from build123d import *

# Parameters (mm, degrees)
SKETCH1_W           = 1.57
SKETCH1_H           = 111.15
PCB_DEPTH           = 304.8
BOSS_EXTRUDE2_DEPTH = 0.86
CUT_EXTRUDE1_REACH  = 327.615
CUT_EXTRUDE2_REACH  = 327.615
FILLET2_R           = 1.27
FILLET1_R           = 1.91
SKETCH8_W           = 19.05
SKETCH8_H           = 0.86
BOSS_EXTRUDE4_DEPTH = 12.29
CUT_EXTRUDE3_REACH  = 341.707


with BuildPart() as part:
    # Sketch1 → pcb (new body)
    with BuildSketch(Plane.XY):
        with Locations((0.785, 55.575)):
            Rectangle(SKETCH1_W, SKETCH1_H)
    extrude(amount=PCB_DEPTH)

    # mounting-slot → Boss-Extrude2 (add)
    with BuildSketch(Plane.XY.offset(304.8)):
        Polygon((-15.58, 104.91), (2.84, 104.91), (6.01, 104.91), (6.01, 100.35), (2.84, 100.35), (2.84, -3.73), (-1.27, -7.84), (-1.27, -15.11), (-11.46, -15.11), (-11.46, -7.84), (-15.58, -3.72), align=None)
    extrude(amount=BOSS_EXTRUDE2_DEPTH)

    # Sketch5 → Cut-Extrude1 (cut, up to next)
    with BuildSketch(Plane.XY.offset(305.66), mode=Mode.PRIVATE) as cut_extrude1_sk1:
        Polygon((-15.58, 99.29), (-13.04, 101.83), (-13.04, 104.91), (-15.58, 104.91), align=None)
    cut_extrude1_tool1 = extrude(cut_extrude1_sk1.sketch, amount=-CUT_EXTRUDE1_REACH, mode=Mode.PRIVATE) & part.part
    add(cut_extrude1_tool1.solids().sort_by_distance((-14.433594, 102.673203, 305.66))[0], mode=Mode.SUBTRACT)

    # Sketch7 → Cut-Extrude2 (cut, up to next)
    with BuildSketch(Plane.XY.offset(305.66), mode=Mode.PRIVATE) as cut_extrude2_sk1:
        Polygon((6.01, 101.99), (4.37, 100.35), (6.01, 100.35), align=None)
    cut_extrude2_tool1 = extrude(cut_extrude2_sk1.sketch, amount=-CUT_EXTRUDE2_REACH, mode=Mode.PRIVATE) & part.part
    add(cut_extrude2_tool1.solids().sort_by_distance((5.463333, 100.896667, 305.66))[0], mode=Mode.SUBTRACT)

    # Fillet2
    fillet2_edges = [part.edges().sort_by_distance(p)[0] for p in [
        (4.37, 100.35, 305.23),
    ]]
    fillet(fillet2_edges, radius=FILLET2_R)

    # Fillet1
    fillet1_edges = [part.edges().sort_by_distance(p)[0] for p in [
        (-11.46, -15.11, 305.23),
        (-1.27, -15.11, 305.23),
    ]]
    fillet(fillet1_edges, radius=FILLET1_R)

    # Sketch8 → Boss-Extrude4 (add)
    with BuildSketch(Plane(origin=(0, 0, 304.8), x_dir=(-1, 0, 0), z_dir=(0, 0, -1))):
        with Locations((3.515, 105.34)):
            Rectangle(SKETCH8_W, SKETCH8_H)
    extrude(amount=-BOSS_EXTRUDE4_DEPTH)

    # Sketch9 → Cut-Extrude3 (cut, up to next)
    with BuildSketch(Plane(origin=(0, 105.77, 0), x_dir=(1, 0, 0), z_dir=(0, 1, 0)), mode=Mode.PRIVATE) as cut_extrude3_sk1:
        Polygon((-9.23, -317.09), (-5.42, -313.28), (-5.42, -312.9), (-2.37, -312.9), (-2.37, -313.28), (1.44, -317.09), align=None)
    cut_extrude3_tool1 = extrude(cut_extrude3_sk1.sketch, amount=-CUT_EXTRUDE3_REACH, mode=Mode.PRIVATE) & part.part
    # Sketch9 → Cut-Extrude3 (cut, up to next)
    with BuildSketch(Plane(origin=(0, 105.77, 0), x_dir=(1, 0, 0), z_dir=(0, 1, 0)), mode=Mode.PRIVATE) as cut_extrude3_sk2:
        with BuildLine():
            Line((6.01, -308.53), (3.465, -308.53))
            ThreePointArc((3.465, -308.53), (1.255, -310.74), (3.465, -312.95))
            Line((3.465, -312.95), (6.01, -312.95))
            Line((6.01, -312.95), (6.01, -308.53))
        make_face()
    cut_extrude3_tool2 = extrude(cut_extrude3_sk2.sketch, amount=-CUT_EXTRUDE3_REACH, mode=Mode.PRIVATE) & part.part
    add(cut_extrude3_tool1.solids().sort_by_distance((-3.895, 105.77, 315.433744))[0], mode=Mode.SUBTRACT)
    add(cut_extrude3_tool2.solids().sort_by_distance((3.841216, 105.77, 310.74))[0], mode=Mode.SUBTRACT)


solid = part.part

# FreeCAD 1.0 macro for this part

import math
import FreeCAD as App
import Part
import Sketcher
Q = App.Units.Quantity


def edges_at(feature, points):
    """Names of the edges that pass closest to the given points."""
    edges = feature.Shape.Edges
    near = lambda p: min(range(len(edges)), key=lambda i: edges[i].distToShape(Part.Vertex(*p))[0])
    return sorted({f"Edge{near(p) + 1}" for p in points})


def add_polygon(sketch, points):
    """Adds a closed chain of lines whose ends are joined by coincident constraints."""
    first, n = sketch.GeometryCount, len(points)
    for a, b in zip(points, points[1:] + points[:1]):
        sketch.addGeometry(Part.LineSegment(App.Vector(*a, 0), App.Vector(*b, 0)), False)
    for i in range(n):
        sketch.addConstraint(Sketcher.Constraint("Coincident", first + i, 2, first + (i + 1) % n, 1))

doc = App.newDocument("Part")
body = doc.addObject("PartDesign::Body", "Body")

sketch1 = body.newObject("Sketcher::SketchObject", "Sketch")
sketch1.AttachmentSupport = (doc.getObject("XY_Plane"), [""])
sketch1.MapMode = "FlatFace"
add_polygon(sketch1, [(0, 111.2), (0, 0), (1.6, 0), (1.6, 111.2)])
sketch1.addConstraint([
    Sketcher.Constraint("Vertical", 0),
    Sketcher.Constraint("Horizontal", 1),
    Sketcher.Constraint("Vertical", 2),
    Sketcher.Constraint("Horizontal", 3),
    Sketcher.Constraint("Coincident", 0, 2, -1, 1),
    Sketcher.Constraint("DistanceX", 1, 1, 1, 2, Q("1.57 mm")),
    Sketcher.Constraint("DistanceY", 0, 2, 0, 1, Q("111.15 mm")),
])
pad1 = body.newObject("PartDesign::Pad", "Pad")
pad1.Profile = sketch1
pad1.Length = Q("12 in")

sketch2 = body.newObject("Sketcher::SketchObject", "Sketch001")
sketch2.AttachmentSupport = (doc.getObject("XY_Plane"), [""])
sketch2.MapMode = "FlatFace"
sketch2.AttachmentOffset = App.Placement(App.Vector(0, 0, 12 * 25.4), App.Rotation())
add_polygon(sketch2, [(6, 104.9), (-15.6, 104.9), (-15.6, -3.7), (-11.5, -7.8), (-11.5, -15.1), (-1.3, -15.1), (-1.3, -7.8), (2.8, -3.7), (2.8, 100.3), (6, 100.3)])
sketch2.addConstraint([
    Sketcher.Constraint("Horizontal", 0),
    Sketcher.Constraint("Vertical", 1),
    Sketcher.Constraint("Vertical", 3),
    Sketcher.Constraint("Horizontal", 4),
    Sketcher.Constraint("Vertical", 5),
    Sketcher.Constraint("Vertical", 7),
    Sketcher.Constraint("Horizontal", 8),
    Sketcher.Constraint("Vertical", 9),
    Sketcher.Constraint("Perpendicular", 2, 6),
    Sketcher.Constraint("Horizontal", 2, 2, 5, 2),
    Sketcher.Constraint("Angle", 2, Q("-45 deg")),
    Sketcher.Constraint("DistanceX", 0, 2, 0, 1, Q("0.85 in")),
    Sketcher.Constraint("DistanceX", 4, 2, -1, 1, Q("0.05 in")),
    Sketcher.Constraint("DistanceX", 4, 1, 4, 2, Q("10.19 mm")),
    Sketcher.Constraint("DistanceX", 8, 1, 8, 2, Q("3.17 mm")),
    Sketcher.Constraint("DistanceY", 1, 2, 1, 1, Q("108.63 mm")),
    Sketcher.Constraint("DistanceY", 3, 2, 3, 1, Q("7.27 mm")),
    Sketcher.Constraint("DistanceY", 7, 1, 7, 2, Q("104.08 mm")),
    Sketcher.Constraint("DistanceY", 9, 1, 9, 2, Q("4.56 mm")),
    Sketcher.Constraint("DistanceY", -1, 1, 0, 2, Q("104.91 mm")),
])
pad2 = body.newObject("PartDesign::Pad", "Pad001")
pad2.Profile = sketch2
pad2.Length = 0.86

sketch3 = body.newObject("Sketcher::SketchObject", "Sketch002")
sketch3.AttachmentSupport = (doc.getObject("XY_Plane"), [""])
sketch3.MapMode = "FlatFace"
sketch3.AttachmentOffset = App.Placement(App.Vector(0, 0, 305.66), App.Rotation())
add_polygon(sketch3, [(-15.6, 99.3), (-13, 101.8), (-13, 104.9), (-15.6, 104.9)])
sketch3.addConstraint([
    Sketcher.Constraint("Vertical", 1),
    Sketcher.Constraint("Horizontal", 2),
    Sketcher.Constraint("Vertical", 3),
    Sketcher.Constraint("DistanceX", 2, 2, 2, 1, Q("0.1 in")),
    Sketcher.Constraint("Angle", 0, Q("45 deg")),
    Sketcher.Constraint("DistanceY", 1, 1, 1, 2, Q("3.08 mm")),
    Sketcher.Constraint("DistanceX", 0, 2, -1, 1, Q("13.04 mm")),
    Sketcher.Constraint("DistanceY", -1, 1, 0, 2, Q("101.83 mm")),
])
pocket1 = body.newObject("PartDesign::Pocket", "Pocket")
pocket1.Profile = sketch3
pocket1.Type = "UpToFirst"

sketch4 = body.newObject("Sketcher::SketchObject", "Sketch003")
sketch4.AttachmentSupport = (doc.getObject("XY_Plane"), [""])
sketch4.MapMode = "FlatFace"
sketch4.AttachmentOffset = App.Placement(App.Vector(0, 0, 305.66), App.Rotation())
add_polygon(sketch4, [(6, 102), (4.4, 100.3), (6, 100.3)])
sketch4.addConstraint([
    Sketcher.Constraint("Horizontal", 1),
    Sketcher.Constraint("Vertical", 2),
    Sketcher.Constraint("Equal", 1, 2),
    Sketcher.Constraint("DistanceX", 1, 1, 1, 2, Q("1.64 mm")),
    Sketcher.Constraint("DistanceX", -1, 1, 0, 2, Q("4.37 mm")),
    Sketcher.Constraint("DistanceY", -1, 1, 0, 2, Q("100.35 mm")),
])
pocket2 = body.newObject("PartDesign::Pocket", "Pocket001")
pocket2.Profile = sketch4
pocket2.Type = "UpToFirst"
doc.recompute()

fillet = body.newObject("PartDesign::Fillet", "Fillet")
fillet.Base = (pocket2, edges_at(pocket2, [(4.37, 100.35, 305.23)]))
fillet.Radius = Q("0.05 in")
doc.recompute()

fillet2 = body.newObject("PartDesign::Fillet", "Fillet001")
fillet2.Base = (fillet, edges_at(fillet, [(-11.46, -15.11, 305.23), (-1.27, -15.11, 305.23)]))
fillet2.Radius = 1.91

sketch5 = body.newObject("Sketcher::SketchObject", "Sketch004")
sketch5.AttachmentSupport = (doc.getObject("XY_Plane"), [""])
sketch5.MapMode = "FlatFace"
sketch5.AttachmentOffset = App.Placement(App.Vector(0, 0, 12 * 25.4), App.Rotation())
add_polygon(sketch5, [(6, 105.8), (6, 104.9), (-13, 104.9), (-13, 105.8)])
sketch5.addConstraint([
    Sketcher.Constraint("Vertical", 0),
    Sketcher.Constraint("Horizontal", 1),
    Sketcher.Constraint("Vertical", 2),
    Sketcher.Constraint("Horizontal", 3),
    Sketcher.Constraint("DistanceX", 1, 2, 1, 1, Q("0.75 in")),
    Sketcher.Constraint("DistanceY", 0, 2, 0, 1, Q("0.86 mm")),
    Sketcher.Constraint("DistanceX", -1, 1, 0, 2, Q("6.01 mm")),
    Sketcher.Constraint("DistanceY", -1, 1, 0, 2, Q("104.91 mm")),
])
pad3 = body.newObject("PartDesign::Pad", "Pad002")
pad3.Profile = sketch5
pad3.Length = 12.29

sketch6 = body.newObject("Sketcher::SketchObject", "Sketch005")
sketch6.AttachmentSupport = (doc.getObject("XZ_Plane"), [""])
sketch6.MapMode = "FlatFace"
sketch6.AttachmentOffset = App.Placement(App.Vector(0, 0, -105.77), App.Rotation())
add_polygon(sketch6, [(-5.42, 313.28), (-9.23, 317.09), (1.44, 317.09), (-2.37, 313.28), (-2.37, 312.9), (-5.42, 312.9)])
sketch6.addConstraint([
    Sketcher.Constraint("Horizontal", 1),
    Sketcher.Constraint("Vertical", 3),
    Sketcher.Constraint("Horizontal", 4),
    Sketcher.Constraint("Vertical", 5),
    Sketcher.Constraint("Perpendicular", 0, 2),
    Sketcher.Constraint("Horizontal", 2, 2, 5, 2),
    Sketcher.Constraint("Equal", 0, 2),
    Sketcher.Constraint("DistanceX", 2, 2, 1, 2, Q("0.15 in")),
    Sketcher.Constraint("DistanceX", 1, 1, 1, 2, Q("10.67 mm")),
    Sketcher.Constraint("DistanceY", 3, 2, 3, 1, Q("0.38 mm")),
    Sketcher.Constraint("DistanceX", 0, 2, -1, 1, Q("9.23 mm")),
    Sketcher.Constraint("DistanceY", -1, 1, 0, 2, Q("317.09 mm")),
])
pocket3 = body.newObject("PartDesign::Pocket", "Pocket002")
pocket3.Profile = sketch6
pocket3.Type = "UpToFirst"
pocket3.Reversed = True

sketch7 = body.newObject("Sketcher::SketchObject", "Sketch006")
sketch7.AttachmentSupport = (doc.getObject("XZ_Plane"), [""])
sketch7.MapMode = "FlatFace"
sketch7.AttachmentOffset = App.Placement(App.Vector(0, 0, -105.77), App.Rotation())
sketch7.addGeometry([
    Part.LineSegment(App.Vector(6, 308.5, 0), App.Vector(3.5, 308.5, 0)),
    Part.ArcOfCircle(Part.Circle(App.Vector(3.5, 310.7, 0), App.Vector(0, 0, 1), 2.2), math.radians(90), math.radians(270)),
    Part.LineSegment(App.Vector(3.5, 312.9, 0), App.Vector(6, 312.9, 0)),
    Part.LineSegment(App.Vector(6, 312.9, 0), App.Vector(6, 308.5, 0)),
], False)
sketch7.addConstraint([
    Sketcher.Constraint("Tangent", 0, 2, 1, 2),
    Sketcher.Constraint("Tangent", 1, 1, 2, 1),
    Sketcher.Constraint("Coincident", 2, 2, 3, 1),
    Sketcher.Constraint("Coincident", 3, 2, 0, 1),
    Sketcher.Constraint("Horizontal", 0),
    Sketcher.Constraint("Horizontal", 2),
    Sketcher.Constraint("Vertical", 3),
    Sketcher.Constraint("Radius", 1, Q("2.21 mm")),
    Sketcher.Constraint("DistanceX", 0, 2, 0, 1, Q("2.545 mm")),
    Sketcher.Constraint("DistanceX", -1, 1, 1, 3, Q("3.465 mm")),
    Sketcher.Constraint("DistanceY", -1, 1, 1, 3, Q("310.74 mm")),
])
pocket4 = body.newObject("PartDesign::Pocket", "Pocket003")
pocket4.Profile = sketch7
pocket4.Type = "UpToFirst"
pocket4.Reversed = True

doc.recompute()
